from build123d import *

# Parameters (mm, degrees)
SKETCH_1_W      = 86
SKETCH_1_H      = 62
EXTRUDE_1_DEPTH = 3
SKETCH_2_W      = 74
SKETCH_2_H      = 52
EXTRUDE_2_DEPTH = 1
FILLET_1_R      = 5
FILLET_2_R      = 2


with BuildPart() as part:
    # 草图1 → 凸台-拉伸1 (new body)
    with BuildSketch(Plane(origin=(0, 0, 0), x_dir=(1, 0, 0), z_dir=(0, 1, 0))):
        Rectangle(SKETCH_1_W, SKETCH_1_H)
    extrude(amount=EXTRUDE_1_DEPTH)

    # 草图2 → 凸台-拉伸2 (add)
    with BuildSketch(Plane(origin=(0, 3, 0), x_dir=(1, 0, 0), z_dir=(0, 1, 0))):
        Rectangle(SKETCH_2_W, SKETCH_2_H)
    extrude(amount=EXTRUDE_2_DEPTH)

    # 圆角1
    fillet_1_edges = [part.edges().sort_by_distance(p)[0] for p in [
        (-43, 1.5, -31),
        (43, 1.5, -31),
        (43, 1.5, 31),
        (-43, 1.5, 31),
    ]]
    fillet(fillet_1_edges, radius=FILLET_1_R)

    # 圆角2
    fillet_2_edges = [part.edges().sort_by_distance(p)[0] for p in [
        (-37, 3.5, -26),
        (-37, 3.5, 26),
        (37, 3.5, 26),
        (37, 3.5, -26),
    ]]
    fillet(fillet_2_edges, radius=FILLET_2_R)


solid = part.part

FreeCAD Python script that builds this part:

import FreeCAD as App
import Part
import Sketcher
Q = App.Units.Quantity


def edges_at(feature, points):
    """Names of the edges that pass closest to the given points."""
    edges = feature.Shape.Edges
    near = lambda p: min(range(len(edges)), key=lambda i: edges[i].distToShape(Part.Vertex(*p))[0])
    return sorted({f"Edge{near(p) + 1}" for p in points})

doc = App.newDocument("Part")
body = doc.addObject("PartDesign::Body", "Body")

sketch1 = doc.addObject("Sketcher::SketchObject", "Sketch")
body.addObject(sketch1)
sketch1.AttachmentSupport = (doc.XZ_Plane, [""])
sketch1.MapMode = "FlatFace"
sketch1.addGeometry(Part.LineSegment(App.Vector(-43, -31, 0), App.Vector(-43, 31, 0)), False)
sketch1.addGeometry(Part.LineSegment(App.Vector(-43, 31, 0), App.Vector(43, 31, 0)), False)
sketch1.addGeometry(Part.LineSegment(App.Vector(43, 31, 0), App.Vector(43, -31, 0)), False)
sketch1.addGeometry(Part.LineSegment(App.Vector(43, -31, 0), App.Vector(-43, -31, 0)), False)
sketch1.addConstraint(Sketcher.Constraint("Coincident", 0, 2, 1, 1))
sketch1.addConstraint(Sketcher.Constraint("Coincident", 1, 2, 2, 1))
sketch1.addConstraint(Sketcher.Constraint("Coincident", 2, 2, 3, 1))
sketch1.addConstraint(Sketcher.Constraint("Coincident", 3, 2, 0, 1))
sketch1.addConstraint(Sketcher.Constraint("Vertical", 0))
sketch1.addConstraint(Sketcher.Constraint("Horizontal", 1))
sketch1.addConstraint(Sketcher.Constraint("Vertical", 2))
sketch1.addConstraint(Sketcher.Constraint("Horizontal", 3))
sketch1.addConstraint(Sketcher.Constraint("Symmetric", 0, 2, 2, 2, -1, 1))
sketch1.addConstraint(Sketcher.Constraint("DistanceX", 1, 1, 1, 2, Q("86 mm")))
sketch1.addConstraint(Sketcher.Constraint("DistanceY", 0, 1, 0, 2, Q("62 mm")))
pad1 = doc.addObject("PartDesign::Pad", "Pad")
body.addObject(pad1)
pad1.Profile = sketch1
pad1.Length = 3
pad1.Reversed = True

sketch2 = doc.addObject("Sketcher::SketchObject", "Sketch001")
body.addObject(sketch2)
sketch2.AttachmentSupport = (doc.XZ_Plane, [""])
sketch2.MapMode = "FlatFace"
sketch2.AttachmentOffset = App.Placement(App.Vector(0, 0, -3), App.Rotation())
sketch2.addGeometry(Part.LineSegment(App.Vector(-37, -26, 0), App.Vector(-37, 26, 0)), False)
sketch2.addGeometry(Part.LineSegment(App.Vector(-37, 26, 0), App.Vector(37, 26, 0)), False)
sketch2.addGeometry(Part.LineSegment(App.Vector(37, 26, 0), App.Vector(37, -26, 0)), False)
sketch2.addGeometry(Part.LineSegment(App.Vector(37, -26, 0), App.Vector(-37, -26, 0)), False)
sketch2.addConstraint(Sketcher.Constraint("Coincident", 0, 2, 1, 1))
sketch2.addConstraint(Sketcher.Constraint("Coincident", 1, 2, 2, 1))
sketch2.addConstraint(Sketcher.Constraint("Coincident", 2, 2, 3, 1))
sketch2.addConstraint(Sketcher.Constraint("Coincident", 3, 2, 0, 1))
sketch2.addConstraint(Sketcher.Constraint("Vertical", 0))
sketch2.addConstraint(Sketcher.Constraint("Horizontal", 1))
sketch2.addConstraint(Sketcher.Constraint("Vertical", 2))
sketch2.addConstraint(Sketcher.Constraint("Horizontal", 3))
sketch2.addConstraint(Sketcher.Constraint("Symmetric", 0, 2, 2, 2, -1, 1))
sketch2.addConstraint(Sketcher.Constraint("DistanceX", 1, 1, 1, 2, Q("74 mm")))
sketch2.addConstraint(Sketcher.Constraint("DistanceY", 0, 1, 0, 2, Q("52 mm")))
pad2 = doc.addObject("PartDesign::Pad", "Pad001")
body.addObject(pad2)
pad2.Profile = sketch2
pad2.Length = 1
pad2.Reversed = True
doc.recompute()

fillet = doc.addObject("PartDesign::Fillet", "Fillet")
body.addObject(fillet)
fillet.Base = (pad2, edges_at(pad2, [
    (-43, 1.5, -31),
    (43, 1.5, -31),
    (43, 1.5, 31),
    (-43, 1.5, 31),
]))
fillet.Radius = 5
doc.recompute()

fillet2 = doc.addObject("PartDesign::Fillet", "Fillet001")
body.addObject(fillet2)
fillet2.Base = (fillet, edges_at(fillet, [
    (-37, 3.5, -26),
    (-37, 3.5, 26),
    (37, 3.5, 26),
    (37, 3.5, -26),
]))
fillet2.Radius = 2

doc.recompute()
